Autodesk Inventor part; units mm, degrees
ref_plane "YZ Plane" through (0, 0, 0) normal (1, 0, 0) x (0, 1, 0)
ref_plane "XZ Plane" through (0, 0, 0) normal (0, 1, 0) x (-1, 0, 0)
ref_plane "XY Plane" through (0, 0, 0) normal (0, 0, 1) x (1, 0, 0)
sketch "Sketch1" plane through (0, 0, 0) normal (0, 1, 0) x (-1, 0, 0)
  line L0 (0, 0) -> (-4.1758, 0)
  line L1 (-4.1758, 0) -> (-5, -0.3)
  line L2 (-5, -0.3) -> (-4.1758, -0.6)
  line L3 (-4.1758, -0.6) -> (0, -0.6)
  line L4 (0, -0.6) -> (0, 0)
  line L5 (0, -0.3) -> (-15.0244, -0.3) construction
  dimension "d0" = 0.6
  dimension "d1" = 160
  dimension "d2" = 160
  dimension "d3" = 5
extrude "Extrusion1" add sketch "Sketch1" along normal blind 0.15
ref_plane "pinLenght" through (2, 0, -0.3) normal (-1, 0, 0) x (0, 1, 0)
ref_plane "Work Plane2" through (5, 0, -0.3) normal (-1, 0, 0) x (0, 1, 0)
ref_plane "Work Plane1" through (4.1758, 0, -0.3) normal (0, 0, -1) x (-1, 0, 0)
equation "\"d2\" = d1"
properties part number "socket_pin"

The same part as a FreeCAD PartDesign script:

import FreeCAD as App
import Part
import Sketcher
from FreeCAD import Vector
Q = App.Units.Quantity

doc = App.newDocument("Part")
body = doc.addObject("PartDesign::Body", "Body")

# Sketch on XZ plane
sketch1 = body.newObject("Sketcher::SketchObject", "Sketch")
sketch1.AttachmentSupport = (doc.getObject("XZ_Plane"), [""])
sketch1.MapMode = "FlatFace"
sketch1.addGeometry(Part.LineSegment(Vector(0, -0.6, 0), Vector(0, 0, 0)), False)
sketch1.addGeometry(Part.LineSegment(Vector(0, 0, 0), Vector(4.2, 0, 0)), False)
sketch1.addGeometry(Part.LineSegment(Vector(4.2, 0, 0), Vector(5, -0.3, 0)), False)
sketch1.addGeometry(Part.LineSegment(Vector(5, -0.3, 0), Vector(4.2, -0.6, 0)), False)
sketch1.addGeometry(Part.LineSegment(Vector(4.2, -0.6, 0), Vector(0, -0.6, 0)), False)
sketch1.addConstraint(Sketcher.Constraint("Coincident", 0, 2, 1, 1))
sketch1.addConstraint(Sketcher.Constraint("Coincident", 1, 2, 2, 1))
sketch1.addConstraint(Sketcher.Constraint("Coincident", 2, 2, 3, 1))
sketch1.addConstraint(Sketcher.Constraint("Coincident", 3, 2, 4, 1))
sketch1.addConstraint(Sketcher.Constraint("Coincident", 4, 2, 0, 1))
sketch1.addConstraint(Sketcher.Constraint("Vertical", 0))
sketch1.addConstraint(Sketcher.Constraint("Horizontal", 1))
sketch1.addConstraint(Sketcher.Constraint("Horizontal", 4))
sketch1.addConstraint(Sketcher.Constraint("Coincident", 0, 2, -1, 1))
sketch1.addConstraint(Sketcher.Constraint("Vertical", 1, 2, 3, 2))
sketch1.addConstraint(Sketcher.Constraint("Equal", 2, 3))
sketch1.addConstraint(Sketcher.Constraint("DistanceY", 0, 1, 0, 2, 0.6))
sketch1.addConstraint(Sketcher.Constraint("DistanceX", -1, 1, 2, 2, 5.0))
sketch1.addConstraint(Sketcher.Constraint("Angle", 2, Q("-20.001 deg")))
pad1 = body.newObject("PartDesign::Pad", "Pad")
pad1.Profile = sketch1
pad1.Length = 0.15
pad1.Reversed = True

doc.recompute()
